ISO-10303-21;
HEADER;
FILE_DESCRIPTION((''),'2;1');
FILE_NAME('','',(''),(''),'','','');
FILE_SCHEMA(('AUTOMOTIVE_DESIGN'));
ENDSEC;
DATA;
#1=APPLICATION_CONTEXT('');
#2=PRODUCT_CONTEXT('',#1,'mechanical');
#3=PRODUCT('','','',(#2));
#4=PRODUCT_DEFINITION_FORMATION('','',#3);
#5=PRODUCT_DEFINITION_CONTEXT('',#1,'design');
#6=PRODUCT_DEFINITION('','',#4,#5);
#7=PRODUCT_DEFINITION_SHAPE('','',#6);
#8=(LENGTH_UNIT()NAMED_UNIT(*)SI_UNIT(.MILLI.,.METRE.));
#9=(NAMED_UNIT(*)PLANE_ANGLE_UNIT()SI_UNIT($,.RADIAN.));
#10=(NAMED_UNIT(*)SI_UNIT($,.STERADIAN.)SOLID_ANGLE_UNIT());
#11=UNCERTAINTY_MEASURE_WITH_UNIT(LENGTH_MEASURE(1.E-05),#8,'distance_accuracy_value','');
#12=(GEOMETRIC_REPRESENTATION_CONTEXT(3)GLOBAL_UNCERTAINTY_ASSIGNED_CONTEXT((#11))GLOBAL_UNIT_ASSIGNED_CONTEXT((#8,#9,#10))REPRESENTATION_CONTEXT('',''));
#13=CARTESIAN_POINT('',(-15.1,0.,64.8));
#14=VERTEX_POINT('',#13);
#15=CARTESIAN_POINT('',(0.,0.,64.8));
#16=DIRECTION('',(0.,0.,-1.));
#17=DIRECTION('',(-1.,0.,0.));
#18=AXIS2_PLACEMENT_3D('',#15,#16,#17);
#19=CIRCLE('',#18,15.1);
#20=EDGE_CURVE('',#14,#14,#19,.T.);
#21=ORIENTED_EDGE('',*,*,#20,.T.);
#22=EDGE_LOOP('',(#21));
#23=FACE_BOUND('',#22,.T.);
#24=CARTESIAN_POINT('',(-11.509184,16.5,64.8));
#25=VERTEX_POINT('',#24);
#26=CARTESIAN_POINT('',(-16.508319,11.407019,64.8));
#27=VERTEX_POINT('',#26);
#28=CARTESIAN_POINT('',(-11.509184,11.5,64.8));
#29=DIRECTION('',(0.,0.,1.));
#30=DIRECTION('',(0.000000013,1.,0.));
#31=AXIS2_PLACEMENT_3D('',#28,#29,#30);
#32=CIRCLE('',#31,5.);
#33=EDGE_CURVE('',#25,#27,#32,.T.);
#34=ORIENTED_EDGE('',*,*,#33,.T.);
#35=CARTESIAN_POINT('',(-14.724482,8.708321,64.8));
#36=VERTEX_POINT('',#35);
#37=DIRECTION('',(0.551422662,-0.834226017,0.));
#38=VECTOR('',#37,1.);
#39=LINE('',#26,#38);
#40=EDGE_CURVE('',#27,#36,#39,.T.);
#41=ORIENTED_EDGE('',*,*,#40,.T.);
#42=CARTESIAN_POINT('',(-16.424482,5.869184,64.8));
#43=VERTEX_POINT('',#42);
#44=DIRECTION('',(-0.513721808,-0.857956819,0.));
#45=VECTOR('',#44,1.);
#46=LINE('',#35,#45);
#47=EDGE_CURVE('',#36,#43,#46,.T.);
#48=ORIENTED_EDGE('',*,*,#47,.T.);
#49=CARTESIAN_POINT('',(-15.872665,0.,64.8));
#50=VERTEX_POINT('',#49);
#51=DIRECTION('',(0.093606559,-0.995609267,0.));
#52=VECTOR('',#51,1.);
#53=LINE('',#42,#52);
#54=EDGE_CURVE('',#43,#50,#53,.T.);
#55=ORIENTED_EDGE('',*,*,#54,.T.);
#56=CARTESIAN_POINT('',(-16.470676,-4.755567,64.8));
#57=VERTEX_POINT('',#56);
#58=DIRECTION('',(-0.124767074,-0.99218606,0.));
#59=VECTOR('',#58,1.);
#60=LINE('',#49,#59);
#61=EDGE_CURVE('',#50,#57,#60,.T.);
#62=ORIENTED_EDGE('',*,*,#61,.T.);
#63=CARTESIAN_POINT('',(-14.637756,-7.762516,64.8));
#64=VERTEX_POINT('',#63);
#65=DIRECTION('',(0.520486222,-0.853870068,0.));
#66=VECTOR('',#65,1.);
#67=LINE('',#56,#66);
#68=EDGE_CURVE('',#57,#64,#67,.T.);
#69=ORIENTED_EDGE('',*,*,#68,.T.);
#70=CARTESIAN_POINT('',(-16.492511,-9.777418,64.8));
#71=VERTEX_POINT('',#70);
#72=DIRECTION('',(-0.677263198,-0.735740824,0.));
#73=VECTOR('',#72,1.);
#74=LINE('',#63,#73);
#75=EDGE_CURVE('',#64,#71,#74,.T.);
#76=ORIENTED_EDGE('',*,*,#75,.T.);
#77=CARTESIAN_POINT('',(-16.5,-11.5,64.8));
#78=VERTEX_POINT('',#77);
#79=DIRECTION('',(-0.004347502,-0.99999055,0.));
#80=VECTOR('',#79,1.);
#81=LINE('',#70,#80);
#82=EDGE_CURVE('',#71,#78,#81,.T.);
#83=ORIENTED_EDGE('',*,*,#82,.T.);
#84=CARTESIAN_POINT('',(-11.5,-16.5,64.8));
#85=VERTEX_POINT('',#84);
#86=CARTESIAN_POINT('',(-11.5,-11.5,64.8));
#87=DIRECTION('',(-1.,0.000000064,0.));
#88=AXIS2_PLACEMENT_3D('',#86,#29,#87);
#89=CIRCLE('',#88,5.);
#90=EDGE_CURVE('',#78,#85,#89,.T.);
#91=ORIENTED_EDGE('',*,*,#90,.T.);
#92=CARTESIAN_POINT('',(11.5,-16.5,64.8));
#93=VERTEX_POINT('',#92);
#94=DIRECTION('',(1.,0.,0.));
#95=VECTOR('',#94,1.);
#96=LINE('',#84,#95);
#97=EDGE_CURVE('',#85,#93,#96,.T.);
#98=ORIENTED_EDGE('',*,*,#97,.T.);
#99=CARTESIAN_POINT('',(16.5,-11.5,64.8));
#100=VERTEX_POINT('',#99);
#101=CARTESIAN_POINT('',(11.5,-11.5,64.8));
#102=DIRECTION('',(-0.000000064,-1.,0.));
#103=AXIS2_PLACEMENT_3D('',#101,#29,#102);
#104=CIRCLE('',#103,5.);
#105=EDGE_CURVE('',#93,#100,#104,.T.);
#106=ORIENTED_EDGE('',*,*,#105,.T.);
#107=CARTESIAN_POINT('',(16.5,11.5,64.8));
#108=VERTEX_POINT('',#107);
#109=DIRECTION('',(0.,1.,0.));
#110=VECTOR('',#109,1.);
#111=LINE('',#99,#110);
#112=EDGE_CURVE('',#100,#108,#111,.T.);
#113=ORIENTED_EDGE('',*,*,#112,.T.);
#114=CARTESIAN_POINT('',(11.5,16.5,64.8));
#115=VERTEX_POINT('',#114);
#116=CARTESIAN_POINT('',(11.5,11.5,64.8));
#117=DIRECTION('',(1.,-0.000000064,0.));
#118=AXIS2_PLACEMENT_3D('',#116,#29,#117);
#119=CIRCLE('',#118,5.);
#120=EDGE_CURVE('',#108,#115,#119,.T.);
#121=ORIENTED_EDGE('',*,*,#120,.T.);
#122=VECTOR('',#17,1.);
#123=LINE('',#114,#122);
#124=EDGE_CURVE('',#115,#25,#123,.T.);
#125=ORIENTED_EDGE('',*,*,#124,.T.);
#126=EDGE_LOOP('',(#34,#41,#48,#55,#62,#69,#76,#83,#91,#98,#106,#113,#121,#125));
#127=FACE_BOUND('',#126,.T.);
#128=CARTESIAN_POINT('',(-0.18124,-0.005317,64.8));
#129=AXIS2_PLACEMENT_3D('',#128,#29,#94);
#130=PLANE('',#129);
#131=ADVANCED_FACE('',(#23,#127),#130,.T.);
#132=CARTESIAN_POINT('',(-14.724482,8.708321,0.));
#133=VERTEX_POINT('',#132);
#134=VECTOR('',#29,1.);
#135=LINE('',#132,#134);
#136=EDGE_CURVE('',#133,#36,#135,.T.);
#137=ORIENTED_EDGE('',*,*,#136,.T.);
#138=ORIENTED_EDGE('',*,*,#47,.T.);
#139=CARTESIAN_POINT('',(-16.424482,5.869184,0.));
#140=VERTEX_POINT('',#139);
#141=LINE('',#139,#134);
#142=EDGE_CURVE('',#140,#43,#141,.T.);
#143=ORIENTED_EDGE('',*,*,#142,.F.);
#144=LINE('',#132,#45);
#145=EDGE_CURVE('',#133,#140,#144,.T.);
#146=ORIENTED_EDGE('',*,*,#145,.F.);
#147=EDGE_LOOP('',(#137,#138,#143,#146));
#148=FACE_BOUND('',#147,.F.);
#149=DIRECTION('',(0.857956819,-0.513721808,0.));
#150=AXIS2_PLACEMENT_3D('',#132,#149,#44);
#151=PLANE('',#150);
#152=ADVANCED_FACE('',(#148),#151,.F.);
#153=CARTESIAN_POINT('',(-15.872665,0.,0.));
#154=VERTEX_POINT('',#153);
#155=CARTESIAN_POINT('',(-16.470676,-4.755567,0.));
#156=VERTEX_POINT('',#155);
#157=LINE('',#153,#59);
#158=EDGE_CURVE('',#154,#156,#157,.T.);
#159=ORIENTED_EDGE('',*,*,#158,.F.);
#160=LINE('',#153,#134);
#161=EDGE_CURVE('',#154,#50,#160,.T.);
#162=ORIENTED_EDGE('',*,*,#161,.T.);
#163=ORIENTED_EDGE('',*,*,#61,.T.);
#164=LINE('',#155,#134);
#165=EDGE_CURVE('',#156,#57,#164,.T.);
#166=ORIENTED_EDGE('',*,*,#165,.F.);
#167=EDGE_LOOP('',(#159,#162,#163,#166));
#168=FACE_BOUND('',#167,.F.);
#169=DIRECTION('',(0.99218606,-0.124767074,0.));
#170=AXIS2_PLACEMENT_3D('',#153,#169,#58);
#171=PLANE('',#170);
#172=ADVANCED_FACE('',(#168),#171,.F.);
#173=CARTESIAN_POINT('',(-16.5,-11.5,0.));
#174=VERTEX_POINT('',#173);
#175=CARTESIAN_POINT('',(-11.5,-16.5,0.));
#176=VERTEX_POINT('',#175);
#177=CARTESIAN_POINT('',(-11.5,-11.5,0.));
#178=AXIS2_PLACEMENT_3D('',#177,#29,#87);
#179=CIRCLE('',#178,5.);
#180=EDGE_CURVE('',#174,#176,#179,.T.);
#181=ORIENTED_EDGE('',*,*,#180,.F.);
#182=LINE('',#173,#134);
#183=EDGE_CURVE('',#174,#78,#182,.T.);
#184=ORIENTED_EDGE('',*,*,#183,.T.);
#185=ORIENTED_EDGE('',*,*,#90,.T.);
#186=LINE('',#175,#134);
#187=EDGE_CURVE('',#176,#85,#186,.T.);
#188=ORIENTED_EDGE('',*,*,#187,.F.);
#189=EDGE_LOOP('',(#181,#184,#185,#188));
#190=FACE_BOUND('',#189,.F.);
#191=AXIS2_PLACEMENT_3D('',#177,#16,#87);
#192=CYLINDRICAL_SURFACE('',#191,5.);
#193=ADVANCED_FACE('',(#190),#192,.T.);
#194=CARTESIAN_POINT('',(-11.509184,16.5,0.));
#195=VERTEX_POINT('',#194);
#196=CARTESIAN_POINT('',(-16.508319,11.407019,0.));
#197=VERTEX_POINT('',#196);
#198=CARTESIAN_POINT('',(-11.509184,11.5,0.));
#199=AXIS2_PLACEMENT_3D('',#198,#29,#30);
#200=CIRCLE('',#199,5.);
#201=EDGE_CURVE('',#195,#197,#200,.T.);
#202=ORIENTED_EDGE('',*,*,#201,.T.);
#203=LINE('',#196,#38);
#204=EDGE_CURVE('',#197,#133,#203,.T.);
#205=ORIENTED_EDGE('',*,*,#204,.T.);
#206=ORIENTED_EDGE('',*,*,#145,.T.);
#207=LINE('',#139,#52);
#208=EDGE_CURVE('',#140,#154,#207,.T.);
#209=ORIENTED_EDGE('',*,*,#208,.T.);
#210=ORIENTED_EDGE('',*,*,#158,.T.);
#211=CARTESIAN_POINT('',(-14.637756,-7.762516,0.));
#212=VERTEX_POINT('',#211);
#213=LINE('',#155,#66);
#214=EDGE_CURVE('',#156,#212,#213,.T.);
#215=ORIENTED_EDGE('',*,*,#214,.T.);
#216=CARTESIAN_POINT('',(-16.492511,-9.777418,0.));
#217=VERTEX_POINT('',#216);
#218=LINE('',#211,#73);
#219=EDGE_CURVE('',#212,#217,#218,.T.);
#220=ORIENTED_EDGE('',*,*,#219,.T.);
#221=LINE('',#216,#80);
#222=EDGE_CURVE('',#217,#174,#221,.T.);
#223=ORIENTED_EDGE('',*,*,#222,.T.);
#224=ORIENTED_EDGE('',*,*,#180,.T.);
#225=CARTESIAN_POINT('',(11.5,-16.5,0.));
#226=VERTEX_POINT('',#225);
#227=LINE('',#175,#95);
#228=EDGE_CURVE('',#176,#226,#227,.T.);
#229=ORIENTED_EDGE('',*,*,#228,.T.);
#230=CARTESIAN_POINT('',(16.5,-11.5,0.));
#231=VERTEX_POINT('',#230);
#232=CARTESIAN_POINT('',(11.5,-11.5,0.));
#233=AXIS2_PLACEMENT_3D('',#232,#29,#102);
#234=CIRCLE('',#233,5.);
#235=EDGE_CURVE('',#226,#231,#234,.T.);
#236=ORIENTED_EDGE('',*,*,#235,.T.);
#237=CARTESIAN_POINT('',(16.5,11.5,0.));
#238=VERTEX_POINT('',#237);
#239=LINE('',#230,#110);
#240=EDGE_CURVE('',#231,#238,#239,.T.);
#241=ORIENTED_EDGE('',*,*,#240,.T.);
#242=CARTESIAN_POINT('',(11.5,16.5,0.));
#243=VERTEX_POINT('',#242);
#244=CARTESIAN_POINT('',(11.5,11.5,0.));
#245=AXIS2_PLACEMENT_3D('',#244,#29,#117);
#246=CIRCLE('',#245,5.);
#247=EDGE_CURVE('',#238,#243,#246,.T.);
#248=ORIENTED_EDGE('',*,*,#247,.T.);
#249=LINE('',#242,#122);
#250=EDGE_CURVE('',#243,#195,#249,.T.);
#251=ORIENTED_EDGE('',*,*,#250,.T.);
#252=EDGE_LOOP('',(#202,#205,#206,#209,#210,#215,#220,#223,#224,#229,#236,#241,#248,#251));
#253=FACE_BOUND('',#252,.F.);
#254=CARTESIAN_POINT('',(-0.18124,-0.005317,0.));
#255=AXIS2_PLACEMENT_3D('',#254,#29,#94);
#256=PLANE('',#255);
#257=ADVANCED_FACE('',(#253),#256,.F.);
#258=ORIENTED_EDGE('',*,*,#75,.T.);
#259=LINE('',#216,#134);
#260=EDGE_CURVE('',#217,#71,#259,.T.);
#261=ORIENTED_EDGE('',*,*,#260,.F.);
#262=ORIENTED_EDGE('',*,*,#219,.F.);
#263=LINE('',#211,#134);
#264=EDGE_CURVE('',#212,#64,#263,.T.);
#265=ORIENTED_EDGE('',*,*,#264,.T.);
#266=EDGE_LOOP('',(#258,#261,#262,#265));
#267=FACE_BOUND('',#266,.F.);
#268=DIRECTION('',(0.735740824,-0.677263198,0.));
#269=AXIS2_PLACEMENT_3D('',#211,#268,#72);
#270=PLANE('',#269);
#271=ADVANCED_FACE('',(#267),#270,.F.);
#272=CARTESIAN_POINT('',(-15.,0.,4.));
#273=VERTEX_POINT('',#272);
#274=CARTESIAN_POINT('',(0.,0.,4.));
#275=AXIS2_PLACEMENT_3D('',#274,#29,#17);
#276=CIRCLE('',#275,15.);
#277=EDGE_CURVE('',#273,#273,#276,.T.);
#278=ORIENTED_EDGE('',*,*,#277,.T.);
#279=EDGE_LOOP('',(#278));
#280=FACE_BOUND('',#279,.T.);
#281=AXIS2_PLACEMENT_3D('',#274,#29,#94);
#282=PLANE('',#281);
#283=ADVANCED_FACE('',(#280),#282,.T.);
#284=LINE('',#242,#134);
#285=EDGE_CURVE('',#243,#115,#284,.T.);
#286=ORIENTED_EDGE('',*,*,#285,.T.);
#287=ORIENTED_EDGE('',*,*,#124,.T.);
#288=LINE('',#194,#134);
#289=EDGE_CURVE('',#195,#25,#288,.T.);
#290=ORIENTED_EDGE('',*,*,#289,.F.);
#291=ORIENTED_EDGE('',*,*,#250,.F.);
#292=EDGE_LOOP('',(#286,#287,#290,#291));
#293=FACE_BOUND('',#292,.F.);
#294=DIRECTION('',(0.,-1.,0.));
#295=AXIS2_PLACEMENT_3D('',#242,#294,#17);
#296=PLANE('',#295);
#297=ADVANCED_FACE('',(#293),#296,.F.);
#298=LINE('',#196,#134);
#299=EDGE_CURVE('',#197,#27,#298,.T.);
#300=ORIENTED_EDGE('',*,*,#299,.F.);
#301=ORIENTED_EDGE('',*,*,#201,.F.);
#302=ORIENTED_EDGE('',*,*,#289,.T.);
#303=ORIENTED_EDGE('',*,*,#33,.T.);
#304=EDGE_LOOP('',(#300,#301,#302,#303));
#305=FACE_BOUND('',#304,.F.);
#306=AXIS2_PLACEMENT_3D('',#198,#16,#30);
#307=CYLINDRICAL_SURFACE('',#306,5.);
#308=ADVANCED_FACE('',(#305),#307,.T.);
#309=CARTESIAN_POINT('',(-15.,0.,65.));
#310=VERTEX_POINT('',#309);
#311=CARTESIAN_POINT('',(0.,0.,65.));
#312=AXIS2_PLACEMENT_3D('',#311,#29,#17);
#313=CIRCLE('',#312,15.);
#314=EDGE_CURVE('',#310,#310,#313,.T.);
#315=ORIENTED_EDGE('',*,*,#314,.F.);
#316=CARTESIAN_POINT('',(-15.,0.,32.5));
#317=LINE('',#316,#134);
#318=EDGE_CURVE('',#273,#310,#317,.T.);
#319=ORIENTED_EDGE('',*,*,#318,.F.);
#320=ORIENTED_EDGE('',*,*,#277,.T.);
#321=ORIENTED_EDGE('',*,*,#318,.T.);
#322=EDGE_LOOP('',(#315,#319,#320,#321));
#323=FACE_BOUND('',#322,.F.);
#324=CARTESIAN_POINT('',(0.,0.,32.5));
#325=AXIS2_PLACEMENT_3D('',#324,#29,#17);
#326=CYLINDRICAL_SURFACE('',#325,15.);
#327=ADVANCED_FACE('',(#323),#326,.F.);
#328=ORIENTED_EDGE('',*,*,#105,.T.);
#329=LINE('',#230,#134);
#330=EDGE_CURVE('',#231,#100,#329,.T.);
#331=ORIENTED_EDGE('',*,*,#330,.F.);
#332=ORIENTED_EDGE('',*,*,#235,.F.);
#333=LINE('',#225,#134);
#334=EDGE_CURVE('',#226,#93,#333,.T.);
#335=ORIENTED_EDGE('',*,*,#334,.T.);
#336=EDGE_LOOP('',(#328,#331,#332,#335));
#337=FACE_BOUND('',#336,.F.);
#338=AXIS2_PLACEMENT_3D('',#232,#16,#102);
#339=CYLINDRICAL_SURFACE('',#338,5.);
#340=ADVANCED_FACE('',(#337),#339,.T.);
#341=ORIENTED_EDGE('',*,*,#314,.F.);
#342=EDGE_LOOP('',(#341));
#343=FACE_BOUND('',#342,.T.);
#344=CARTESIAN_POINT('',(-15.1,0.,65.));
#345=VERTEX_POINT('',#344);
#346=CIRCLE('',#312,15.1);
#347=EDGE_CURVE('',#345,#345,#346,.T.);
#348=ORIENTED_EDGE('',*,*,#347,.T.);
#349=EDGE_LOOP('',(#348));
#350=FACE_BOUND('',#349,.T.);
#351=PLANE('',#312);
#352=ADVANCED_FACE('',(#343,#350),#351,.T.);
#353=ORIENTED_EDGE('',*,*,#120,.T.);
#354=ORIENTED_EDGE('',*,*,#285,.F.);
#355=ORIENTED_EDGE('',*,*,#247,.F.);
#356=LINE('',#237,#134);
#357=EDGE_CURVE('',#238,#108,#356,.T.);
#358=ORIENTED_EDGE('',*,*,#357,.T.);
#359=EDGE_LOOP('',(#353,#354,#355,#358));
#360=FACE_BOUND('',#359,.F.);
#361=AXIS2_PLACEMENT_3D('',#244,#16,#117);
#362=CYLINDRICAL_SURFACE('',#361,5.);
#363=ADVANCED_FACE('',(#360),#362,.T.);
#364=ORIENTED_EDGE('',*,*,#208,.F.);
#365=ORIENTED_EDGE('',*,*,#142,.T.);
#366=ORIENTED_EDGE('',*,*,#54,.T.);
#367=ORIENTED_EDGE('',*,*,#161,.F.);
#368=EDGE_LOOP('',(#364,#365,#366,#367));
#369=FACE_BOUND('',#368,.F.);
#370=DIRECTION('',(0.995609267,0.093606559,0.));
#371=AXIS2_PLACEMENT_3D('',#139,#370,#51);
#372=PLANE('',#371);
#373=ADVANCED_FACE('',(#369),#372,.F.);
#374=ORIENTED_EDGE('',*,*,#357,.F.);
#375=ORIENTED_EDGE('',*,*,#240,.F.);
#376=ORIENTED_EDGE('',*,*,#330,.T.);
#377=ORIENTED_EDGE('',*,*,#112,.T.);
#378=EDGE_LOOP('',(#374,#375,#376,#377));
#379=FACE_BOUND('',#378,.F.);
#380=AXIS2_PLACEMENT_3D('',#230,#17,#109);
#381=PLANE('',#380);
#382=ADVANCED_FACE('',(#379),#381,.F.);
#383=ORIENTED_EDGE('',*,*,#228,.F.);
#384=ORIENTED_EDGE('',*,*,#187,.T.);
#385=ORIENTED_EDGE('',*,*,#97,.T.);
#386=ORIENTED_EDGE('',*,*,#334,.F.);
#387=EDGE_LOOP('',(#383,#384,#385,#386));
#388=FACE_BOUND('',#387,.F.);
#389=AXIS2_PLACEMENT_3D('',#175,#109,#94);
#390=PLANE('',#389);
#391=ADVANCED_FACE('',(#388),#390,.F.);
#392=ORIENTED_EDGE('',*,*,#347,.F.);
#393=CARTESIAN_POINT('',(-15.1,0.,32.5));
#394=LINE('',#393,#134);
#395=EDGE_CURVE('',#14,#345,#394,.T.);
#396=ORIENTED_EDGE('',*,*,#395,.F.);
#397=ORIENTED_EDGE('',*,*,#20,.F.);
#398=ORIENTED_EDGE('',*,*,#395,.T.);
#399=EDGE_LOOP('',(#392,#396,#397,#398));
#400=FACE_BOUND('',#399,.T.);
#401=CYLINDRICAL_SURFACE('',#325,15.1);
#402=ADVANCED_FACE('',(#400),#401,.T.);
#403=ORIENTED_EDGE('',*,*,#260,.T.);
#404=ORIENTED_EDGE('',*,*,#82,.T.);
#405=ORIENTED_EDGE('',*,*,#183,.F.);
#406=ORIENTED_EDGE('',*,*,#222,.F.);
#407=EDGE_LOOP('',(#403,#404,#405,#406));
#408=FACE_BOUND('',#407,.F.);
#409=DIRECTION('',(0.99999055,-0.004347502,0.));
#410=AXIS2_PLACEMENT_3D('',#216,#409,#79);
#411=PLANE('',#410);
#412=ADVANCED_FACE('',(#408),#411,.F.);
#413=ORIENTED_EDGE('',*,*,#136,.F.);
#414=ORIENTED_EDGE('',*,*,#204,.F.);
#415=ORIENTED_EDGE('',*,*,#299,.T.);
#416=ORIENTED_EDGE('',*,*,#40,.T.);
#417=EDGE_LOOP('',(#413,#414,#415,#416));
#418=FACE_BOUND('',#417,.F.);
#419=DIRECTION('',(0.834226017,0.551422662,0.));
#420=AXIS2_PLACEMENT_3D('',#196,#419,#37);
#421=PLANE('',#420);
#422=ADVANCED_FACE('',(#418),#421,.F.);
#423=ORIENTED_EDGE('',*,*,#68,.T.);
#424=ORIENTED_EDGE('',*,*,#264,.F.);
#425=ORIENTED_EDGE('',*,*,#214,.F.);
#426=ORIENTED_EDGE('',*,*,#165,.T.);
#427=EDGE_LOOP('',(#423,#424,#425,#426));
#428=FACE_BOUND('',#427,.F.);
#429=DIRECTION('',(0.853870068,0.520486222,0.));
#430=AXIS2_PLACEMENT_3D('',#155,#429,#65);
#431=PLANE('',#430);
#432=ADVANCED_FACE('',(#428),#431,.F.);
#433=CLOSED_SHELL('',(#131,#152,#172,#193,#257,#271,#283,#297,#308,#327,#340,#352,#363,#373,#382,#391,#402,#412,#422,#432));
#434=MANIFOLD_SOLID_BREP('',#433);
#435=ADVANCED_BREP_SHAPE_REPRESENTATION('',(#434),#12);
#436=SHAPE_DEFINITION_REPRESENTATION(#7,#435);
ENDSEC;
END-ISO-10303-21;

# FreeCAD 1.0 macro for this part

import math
import FreeCAD as App
import Part
import Sketcher

V = App.Vector
Q = App.Units.Quantity

doc = App.newDocument("Part")
body = doc.addObject("PartDesign::Body", "Body")

sketch1 = body.newObject("Sketcher::SketchObject", "Sketch")
sketch1.AttachmentSupport = (doc.getObject("XZ_Plane"), [""])
sketch1.MapMode = "FlatFace"
sketch1.addGeometry([
    Part.LineSegment(V(-15.1, 65, 0), V(-15.1, 0, 0)),
    Part.LineSegment(V(-15.1, 0, 0), V(-15, 0, 0)),
    Part.LineSegment(V(-15, 0, 0), V(-15, 65, 0)),
    Part.LineSegment(V(-15, 65, 0), V(-15.1, 65, 0)),
], False)
sketch1.addConstraint([
    Sketcher.Constraint("Coincident", 0, 2, 1, 1),
    Sketcher.Constraint("Coincident", 1, 2, 2, 1),
    Sketcher.Constraint("Coincident", 2, 2, 3, 1),
    Sketcher.Constraint("Coincident", 3, 2, 0, 1),
    Sketcher.Constraint("Vertical", 0),
    Sketcher.Constraint("Horizontal", 1),
    Sketcher.Constraint("Vertical", 2),
    Sketcher.Constraint("Horizontal", 3),
    Sketcher.Constraint("PointOnObject", 0, 2, -1),
    Sketcher.Constraint("DistanceY", 0, 2, 0, 1, Q("65 mm")),
    Sketcher.Constraint("DistanceX", 1, 1, 1, 2, Q("0.1 mm")),
    Sketcher.Constraint("DistanceX", 1, 2, -1, 1, Q("15 mm")),
])
revolution = body.newObject("PartDesign::Revolution", "Revolution")
revolution.Profile = sketch1
revolution.ReferenceAxis = (sketch1, ["V_Axis"])
revolution.Angle = 360

sketch2 = body.newObject("Sketcher::SketchObject", "Sketch001")
sketch2.AttachmentSupport = (doc.getObject("XY_Plane"), [""])
sketch2.MapMode = "FlatFace"
sketch2.addGeometry([
    Part.LineSegment(V(-11.5, -16.5, 0), V(11.5, -16.5, 0)),
    Part.ArcOfCircle(Part.Circle(V(11.5, -11.5, 0), V(0, 0, 1), 5), math.radians(-90.000004), math.radians(0.000004)),
    Part.LineSegment(V(16.5, -11.5, 0), V(16.5, 11.5, 0)),
    Part.ArcOfCircle(Part.Circle(V(11.5, 11.5, 0), V(0, 0, 1), 5), math.radians(-0.000004), math.radians(90.000004)),
    Part.LineSegment(V(11.5, 16.5, 0), V(-11.509184, 16.5, 0)),
    Part.ArcOfCircle(Part.Circle(V(-11.509184, 11.5, 0), V(0, 0, 1), 5), math.radians(89.999999), math.radians(181.06555)),
    Part.LineSegment(V(-16.508319, 11.407019, 0), V(-14.724482, 8.708321, 0)),
    Part.LineSegment(V(-14.724482, 8.708321, 0), V(-16.424482, 5.869184, 0)),
    Part.LineSegment(V(-16.424482, 5.869184, 0), V(-15.872665, 0, 0)),
    Part.LineSegment(V(-15.872665, 0, 0), V(-16.470676, -4.755567, 0)),
    Part.LineSegment(V(-16.470676, -4.755567, 0), V(-14.637756, -7.762516, 0)),
    Part.LineSegment(V(-14.637756, -7.762516, 0), V(-16.492511, -9.777418, 0)),
    Part.LineSegment(V(-16.492511, -9.777418, 0), V(-16.5, -11.5, 0)),
    Part.ArcOfCircle(Part.Circle(V(-11.5, -11.5, 0), V(0, 0, 1), 5), math.radians(179.999996), math.radians(270.000004)),
    Part.Circle(V(0, 0, 0), V(0, 0, 1), 15.1),
], False)
sketch2.addConstraint([
    Sketcher.Constraint("Coincident", 0, 2, 1, 1),
    Sketcher.Constraint("Coincident", 1, 2, 2, 1),
    Sketcher.Constraint("Coincident", 2, 2, 3, 1),
    Sketcher.Constraint("Coincident", 3, 2, 4, 1),
    Sketcher.Constraint("Coincident", 4, 2, 5, 1),
    Sketcher.Constraint("Coincident", 5, 2, 6, 1),
    Sketcher.Constraint("Coincident", 6, 2, 7, 1),
    Sketcher.Constraint("Coincident", 7, 2, 8, 1),
    Sketcher.Constraint("Coincident", 8, 2, 9, 1),
    Sketcher.Constraint("Coincident", 9, 2, 10, 1),
    Sketcher.Constraint("Coincident", 10, 2, 11, 1),
    Sketcher.Constraint("Coincident", 11, 2, 12, 1),
    Sketcher.Constraint("Coincident", 12, 2, 13, 1),
    Sketcher.Constraint("Coincident", 13, 2, 0, 1),
    Sketcher.Constraint("Horizontal", 0),
    Sketcher.Constraint("Vertical", 2),
    Sketcher.Constraint("Horizontal", 4),
    Sketcher.Constraint("Coincident", 14, 3, -1, 1),
    Sketcher.Constraint("PointOnObject", 8, 2, -1),
    Sketcher.Constraint("Radius", 1, Q("5 mm")),
    Sketcher.Constraint("Radius", 3, Q("5 mm")),
    Sketcher.Constraint("Radius", 5, Q("5 mm")),
    Sketcher.Constraint("Radius", 13, Q("5 mm")),
    Sketcher.Constraint("Diameter", 14, Q("30.2 mm")),
    Sketcher.Constraint("DistanceX", 0, 1, 0, 2, Q("23 mm")),
    Sketcher.Constraint("DistanceY", 2, 1, 2, 2, Q("23 mm")),
    Sketcher.Constraint("DistanceY", 1, 3, 3, 3, Q("23.000001 mm")),
    Sketcher.Constraint("DistanceX", 13, 3, 1, 3, Q("23.000001 mm")),
    Sketcher.Constraint("DistanceX", 13, 3, 0, 2, Q("23 mm")),
    Sketcher.Constraint("DistanceY", 0, 2, 1, 2, Q("5 mm")),
    Sketcher.Constraint("DistanceX", 3, 2, 2, 2, Q("5 mm")),
    Sketcher.Constraint("DistanceY", 13, 2, 12, 2, Q("5 mm")),
    Sketcher.Constraint("DistanceX", -1, 1, 1, 3, Q("11.5 mm")),
    Sketcher.Constraint("DistanceY", 1, 3, -1, 1, Q("11.5 mm")),
    Sketcher.Constraint("DistanceX", 7, 2, 6, 2, Q("1.7 mm")),
    Sketcher.Constraint("Distance", 12, Q("1.722598 mm")),
    Sketcher.Constraint("DistanceY", 6, 2, 5, 2, Q("2.698698 mm")),
    Sketcher.Constraint("DistanceX", 6, 2, 4, 2, Q("3.215298 mm")),
    Sketcher.Constraint("DistanceY", 10, 2, 7, 2, Q("13.6317 mm")),
    Sketcher.Constraint("Distance", 9, Q("4.793019 mm")),
    Sketcher.Constraint("DistanceX", 4, 2, 4, 1, Q("23.009184 mm")),
    Sketcher.Constraint("DistanceX", 5, 2, -1, 1, Q("16.508319 mm")),
    Sketcher.Constraint("DistanceY", -1, 1, 5, 2, Q("11.407019 mm")),
    Sketcher.Constraint("DistanceX", 11, 2, -1, 1, Q("16.492511 mm")),
    Sketcher.Constraint("DistanceX", 8, 2, 5, 3, Q("4.363481 mm")),
    Sketcher.Constraint("DistanceX", 9, 2, 8, 2, Q("0.598011 mm")),
    Sketcher.Constraint("DistanceY", 9, 2, 7, 2, Q("10.624751 mm")),
    Sketcher.Constraint("DistanceX", 9, 2, 10, 2, Q("1.83292 mm")),
])
pad1 = body.newObject("PartDesign::Pad", "Pad")
pad1.Profile = sketch2
pad1.Length = 64.8

sketch3 = body.newObject("Sketcher::SketchObject", "Sketch002")
sketch3.AttachmentSupport = (doc.getObject("XY_Plane"), [""])
sketch3.MapMode = "FlatFace"
sketch3.addGeometry(Part.Circle(V(0, 0, 0), V(0, 0, 1), 15), False)
sketch3.addConstraint([
    Sketcher.Constraint("Coincident", 0, 3, -1, 1),
    Sketcher.Constraint("Diameter", 0, Q("30.179756 mm")),
])
pad2 = body.newObject("PartDesign::Pad", "Pad001")
pad2.Profile = sketch3
pad2.Length = 4

doc.recompute()
